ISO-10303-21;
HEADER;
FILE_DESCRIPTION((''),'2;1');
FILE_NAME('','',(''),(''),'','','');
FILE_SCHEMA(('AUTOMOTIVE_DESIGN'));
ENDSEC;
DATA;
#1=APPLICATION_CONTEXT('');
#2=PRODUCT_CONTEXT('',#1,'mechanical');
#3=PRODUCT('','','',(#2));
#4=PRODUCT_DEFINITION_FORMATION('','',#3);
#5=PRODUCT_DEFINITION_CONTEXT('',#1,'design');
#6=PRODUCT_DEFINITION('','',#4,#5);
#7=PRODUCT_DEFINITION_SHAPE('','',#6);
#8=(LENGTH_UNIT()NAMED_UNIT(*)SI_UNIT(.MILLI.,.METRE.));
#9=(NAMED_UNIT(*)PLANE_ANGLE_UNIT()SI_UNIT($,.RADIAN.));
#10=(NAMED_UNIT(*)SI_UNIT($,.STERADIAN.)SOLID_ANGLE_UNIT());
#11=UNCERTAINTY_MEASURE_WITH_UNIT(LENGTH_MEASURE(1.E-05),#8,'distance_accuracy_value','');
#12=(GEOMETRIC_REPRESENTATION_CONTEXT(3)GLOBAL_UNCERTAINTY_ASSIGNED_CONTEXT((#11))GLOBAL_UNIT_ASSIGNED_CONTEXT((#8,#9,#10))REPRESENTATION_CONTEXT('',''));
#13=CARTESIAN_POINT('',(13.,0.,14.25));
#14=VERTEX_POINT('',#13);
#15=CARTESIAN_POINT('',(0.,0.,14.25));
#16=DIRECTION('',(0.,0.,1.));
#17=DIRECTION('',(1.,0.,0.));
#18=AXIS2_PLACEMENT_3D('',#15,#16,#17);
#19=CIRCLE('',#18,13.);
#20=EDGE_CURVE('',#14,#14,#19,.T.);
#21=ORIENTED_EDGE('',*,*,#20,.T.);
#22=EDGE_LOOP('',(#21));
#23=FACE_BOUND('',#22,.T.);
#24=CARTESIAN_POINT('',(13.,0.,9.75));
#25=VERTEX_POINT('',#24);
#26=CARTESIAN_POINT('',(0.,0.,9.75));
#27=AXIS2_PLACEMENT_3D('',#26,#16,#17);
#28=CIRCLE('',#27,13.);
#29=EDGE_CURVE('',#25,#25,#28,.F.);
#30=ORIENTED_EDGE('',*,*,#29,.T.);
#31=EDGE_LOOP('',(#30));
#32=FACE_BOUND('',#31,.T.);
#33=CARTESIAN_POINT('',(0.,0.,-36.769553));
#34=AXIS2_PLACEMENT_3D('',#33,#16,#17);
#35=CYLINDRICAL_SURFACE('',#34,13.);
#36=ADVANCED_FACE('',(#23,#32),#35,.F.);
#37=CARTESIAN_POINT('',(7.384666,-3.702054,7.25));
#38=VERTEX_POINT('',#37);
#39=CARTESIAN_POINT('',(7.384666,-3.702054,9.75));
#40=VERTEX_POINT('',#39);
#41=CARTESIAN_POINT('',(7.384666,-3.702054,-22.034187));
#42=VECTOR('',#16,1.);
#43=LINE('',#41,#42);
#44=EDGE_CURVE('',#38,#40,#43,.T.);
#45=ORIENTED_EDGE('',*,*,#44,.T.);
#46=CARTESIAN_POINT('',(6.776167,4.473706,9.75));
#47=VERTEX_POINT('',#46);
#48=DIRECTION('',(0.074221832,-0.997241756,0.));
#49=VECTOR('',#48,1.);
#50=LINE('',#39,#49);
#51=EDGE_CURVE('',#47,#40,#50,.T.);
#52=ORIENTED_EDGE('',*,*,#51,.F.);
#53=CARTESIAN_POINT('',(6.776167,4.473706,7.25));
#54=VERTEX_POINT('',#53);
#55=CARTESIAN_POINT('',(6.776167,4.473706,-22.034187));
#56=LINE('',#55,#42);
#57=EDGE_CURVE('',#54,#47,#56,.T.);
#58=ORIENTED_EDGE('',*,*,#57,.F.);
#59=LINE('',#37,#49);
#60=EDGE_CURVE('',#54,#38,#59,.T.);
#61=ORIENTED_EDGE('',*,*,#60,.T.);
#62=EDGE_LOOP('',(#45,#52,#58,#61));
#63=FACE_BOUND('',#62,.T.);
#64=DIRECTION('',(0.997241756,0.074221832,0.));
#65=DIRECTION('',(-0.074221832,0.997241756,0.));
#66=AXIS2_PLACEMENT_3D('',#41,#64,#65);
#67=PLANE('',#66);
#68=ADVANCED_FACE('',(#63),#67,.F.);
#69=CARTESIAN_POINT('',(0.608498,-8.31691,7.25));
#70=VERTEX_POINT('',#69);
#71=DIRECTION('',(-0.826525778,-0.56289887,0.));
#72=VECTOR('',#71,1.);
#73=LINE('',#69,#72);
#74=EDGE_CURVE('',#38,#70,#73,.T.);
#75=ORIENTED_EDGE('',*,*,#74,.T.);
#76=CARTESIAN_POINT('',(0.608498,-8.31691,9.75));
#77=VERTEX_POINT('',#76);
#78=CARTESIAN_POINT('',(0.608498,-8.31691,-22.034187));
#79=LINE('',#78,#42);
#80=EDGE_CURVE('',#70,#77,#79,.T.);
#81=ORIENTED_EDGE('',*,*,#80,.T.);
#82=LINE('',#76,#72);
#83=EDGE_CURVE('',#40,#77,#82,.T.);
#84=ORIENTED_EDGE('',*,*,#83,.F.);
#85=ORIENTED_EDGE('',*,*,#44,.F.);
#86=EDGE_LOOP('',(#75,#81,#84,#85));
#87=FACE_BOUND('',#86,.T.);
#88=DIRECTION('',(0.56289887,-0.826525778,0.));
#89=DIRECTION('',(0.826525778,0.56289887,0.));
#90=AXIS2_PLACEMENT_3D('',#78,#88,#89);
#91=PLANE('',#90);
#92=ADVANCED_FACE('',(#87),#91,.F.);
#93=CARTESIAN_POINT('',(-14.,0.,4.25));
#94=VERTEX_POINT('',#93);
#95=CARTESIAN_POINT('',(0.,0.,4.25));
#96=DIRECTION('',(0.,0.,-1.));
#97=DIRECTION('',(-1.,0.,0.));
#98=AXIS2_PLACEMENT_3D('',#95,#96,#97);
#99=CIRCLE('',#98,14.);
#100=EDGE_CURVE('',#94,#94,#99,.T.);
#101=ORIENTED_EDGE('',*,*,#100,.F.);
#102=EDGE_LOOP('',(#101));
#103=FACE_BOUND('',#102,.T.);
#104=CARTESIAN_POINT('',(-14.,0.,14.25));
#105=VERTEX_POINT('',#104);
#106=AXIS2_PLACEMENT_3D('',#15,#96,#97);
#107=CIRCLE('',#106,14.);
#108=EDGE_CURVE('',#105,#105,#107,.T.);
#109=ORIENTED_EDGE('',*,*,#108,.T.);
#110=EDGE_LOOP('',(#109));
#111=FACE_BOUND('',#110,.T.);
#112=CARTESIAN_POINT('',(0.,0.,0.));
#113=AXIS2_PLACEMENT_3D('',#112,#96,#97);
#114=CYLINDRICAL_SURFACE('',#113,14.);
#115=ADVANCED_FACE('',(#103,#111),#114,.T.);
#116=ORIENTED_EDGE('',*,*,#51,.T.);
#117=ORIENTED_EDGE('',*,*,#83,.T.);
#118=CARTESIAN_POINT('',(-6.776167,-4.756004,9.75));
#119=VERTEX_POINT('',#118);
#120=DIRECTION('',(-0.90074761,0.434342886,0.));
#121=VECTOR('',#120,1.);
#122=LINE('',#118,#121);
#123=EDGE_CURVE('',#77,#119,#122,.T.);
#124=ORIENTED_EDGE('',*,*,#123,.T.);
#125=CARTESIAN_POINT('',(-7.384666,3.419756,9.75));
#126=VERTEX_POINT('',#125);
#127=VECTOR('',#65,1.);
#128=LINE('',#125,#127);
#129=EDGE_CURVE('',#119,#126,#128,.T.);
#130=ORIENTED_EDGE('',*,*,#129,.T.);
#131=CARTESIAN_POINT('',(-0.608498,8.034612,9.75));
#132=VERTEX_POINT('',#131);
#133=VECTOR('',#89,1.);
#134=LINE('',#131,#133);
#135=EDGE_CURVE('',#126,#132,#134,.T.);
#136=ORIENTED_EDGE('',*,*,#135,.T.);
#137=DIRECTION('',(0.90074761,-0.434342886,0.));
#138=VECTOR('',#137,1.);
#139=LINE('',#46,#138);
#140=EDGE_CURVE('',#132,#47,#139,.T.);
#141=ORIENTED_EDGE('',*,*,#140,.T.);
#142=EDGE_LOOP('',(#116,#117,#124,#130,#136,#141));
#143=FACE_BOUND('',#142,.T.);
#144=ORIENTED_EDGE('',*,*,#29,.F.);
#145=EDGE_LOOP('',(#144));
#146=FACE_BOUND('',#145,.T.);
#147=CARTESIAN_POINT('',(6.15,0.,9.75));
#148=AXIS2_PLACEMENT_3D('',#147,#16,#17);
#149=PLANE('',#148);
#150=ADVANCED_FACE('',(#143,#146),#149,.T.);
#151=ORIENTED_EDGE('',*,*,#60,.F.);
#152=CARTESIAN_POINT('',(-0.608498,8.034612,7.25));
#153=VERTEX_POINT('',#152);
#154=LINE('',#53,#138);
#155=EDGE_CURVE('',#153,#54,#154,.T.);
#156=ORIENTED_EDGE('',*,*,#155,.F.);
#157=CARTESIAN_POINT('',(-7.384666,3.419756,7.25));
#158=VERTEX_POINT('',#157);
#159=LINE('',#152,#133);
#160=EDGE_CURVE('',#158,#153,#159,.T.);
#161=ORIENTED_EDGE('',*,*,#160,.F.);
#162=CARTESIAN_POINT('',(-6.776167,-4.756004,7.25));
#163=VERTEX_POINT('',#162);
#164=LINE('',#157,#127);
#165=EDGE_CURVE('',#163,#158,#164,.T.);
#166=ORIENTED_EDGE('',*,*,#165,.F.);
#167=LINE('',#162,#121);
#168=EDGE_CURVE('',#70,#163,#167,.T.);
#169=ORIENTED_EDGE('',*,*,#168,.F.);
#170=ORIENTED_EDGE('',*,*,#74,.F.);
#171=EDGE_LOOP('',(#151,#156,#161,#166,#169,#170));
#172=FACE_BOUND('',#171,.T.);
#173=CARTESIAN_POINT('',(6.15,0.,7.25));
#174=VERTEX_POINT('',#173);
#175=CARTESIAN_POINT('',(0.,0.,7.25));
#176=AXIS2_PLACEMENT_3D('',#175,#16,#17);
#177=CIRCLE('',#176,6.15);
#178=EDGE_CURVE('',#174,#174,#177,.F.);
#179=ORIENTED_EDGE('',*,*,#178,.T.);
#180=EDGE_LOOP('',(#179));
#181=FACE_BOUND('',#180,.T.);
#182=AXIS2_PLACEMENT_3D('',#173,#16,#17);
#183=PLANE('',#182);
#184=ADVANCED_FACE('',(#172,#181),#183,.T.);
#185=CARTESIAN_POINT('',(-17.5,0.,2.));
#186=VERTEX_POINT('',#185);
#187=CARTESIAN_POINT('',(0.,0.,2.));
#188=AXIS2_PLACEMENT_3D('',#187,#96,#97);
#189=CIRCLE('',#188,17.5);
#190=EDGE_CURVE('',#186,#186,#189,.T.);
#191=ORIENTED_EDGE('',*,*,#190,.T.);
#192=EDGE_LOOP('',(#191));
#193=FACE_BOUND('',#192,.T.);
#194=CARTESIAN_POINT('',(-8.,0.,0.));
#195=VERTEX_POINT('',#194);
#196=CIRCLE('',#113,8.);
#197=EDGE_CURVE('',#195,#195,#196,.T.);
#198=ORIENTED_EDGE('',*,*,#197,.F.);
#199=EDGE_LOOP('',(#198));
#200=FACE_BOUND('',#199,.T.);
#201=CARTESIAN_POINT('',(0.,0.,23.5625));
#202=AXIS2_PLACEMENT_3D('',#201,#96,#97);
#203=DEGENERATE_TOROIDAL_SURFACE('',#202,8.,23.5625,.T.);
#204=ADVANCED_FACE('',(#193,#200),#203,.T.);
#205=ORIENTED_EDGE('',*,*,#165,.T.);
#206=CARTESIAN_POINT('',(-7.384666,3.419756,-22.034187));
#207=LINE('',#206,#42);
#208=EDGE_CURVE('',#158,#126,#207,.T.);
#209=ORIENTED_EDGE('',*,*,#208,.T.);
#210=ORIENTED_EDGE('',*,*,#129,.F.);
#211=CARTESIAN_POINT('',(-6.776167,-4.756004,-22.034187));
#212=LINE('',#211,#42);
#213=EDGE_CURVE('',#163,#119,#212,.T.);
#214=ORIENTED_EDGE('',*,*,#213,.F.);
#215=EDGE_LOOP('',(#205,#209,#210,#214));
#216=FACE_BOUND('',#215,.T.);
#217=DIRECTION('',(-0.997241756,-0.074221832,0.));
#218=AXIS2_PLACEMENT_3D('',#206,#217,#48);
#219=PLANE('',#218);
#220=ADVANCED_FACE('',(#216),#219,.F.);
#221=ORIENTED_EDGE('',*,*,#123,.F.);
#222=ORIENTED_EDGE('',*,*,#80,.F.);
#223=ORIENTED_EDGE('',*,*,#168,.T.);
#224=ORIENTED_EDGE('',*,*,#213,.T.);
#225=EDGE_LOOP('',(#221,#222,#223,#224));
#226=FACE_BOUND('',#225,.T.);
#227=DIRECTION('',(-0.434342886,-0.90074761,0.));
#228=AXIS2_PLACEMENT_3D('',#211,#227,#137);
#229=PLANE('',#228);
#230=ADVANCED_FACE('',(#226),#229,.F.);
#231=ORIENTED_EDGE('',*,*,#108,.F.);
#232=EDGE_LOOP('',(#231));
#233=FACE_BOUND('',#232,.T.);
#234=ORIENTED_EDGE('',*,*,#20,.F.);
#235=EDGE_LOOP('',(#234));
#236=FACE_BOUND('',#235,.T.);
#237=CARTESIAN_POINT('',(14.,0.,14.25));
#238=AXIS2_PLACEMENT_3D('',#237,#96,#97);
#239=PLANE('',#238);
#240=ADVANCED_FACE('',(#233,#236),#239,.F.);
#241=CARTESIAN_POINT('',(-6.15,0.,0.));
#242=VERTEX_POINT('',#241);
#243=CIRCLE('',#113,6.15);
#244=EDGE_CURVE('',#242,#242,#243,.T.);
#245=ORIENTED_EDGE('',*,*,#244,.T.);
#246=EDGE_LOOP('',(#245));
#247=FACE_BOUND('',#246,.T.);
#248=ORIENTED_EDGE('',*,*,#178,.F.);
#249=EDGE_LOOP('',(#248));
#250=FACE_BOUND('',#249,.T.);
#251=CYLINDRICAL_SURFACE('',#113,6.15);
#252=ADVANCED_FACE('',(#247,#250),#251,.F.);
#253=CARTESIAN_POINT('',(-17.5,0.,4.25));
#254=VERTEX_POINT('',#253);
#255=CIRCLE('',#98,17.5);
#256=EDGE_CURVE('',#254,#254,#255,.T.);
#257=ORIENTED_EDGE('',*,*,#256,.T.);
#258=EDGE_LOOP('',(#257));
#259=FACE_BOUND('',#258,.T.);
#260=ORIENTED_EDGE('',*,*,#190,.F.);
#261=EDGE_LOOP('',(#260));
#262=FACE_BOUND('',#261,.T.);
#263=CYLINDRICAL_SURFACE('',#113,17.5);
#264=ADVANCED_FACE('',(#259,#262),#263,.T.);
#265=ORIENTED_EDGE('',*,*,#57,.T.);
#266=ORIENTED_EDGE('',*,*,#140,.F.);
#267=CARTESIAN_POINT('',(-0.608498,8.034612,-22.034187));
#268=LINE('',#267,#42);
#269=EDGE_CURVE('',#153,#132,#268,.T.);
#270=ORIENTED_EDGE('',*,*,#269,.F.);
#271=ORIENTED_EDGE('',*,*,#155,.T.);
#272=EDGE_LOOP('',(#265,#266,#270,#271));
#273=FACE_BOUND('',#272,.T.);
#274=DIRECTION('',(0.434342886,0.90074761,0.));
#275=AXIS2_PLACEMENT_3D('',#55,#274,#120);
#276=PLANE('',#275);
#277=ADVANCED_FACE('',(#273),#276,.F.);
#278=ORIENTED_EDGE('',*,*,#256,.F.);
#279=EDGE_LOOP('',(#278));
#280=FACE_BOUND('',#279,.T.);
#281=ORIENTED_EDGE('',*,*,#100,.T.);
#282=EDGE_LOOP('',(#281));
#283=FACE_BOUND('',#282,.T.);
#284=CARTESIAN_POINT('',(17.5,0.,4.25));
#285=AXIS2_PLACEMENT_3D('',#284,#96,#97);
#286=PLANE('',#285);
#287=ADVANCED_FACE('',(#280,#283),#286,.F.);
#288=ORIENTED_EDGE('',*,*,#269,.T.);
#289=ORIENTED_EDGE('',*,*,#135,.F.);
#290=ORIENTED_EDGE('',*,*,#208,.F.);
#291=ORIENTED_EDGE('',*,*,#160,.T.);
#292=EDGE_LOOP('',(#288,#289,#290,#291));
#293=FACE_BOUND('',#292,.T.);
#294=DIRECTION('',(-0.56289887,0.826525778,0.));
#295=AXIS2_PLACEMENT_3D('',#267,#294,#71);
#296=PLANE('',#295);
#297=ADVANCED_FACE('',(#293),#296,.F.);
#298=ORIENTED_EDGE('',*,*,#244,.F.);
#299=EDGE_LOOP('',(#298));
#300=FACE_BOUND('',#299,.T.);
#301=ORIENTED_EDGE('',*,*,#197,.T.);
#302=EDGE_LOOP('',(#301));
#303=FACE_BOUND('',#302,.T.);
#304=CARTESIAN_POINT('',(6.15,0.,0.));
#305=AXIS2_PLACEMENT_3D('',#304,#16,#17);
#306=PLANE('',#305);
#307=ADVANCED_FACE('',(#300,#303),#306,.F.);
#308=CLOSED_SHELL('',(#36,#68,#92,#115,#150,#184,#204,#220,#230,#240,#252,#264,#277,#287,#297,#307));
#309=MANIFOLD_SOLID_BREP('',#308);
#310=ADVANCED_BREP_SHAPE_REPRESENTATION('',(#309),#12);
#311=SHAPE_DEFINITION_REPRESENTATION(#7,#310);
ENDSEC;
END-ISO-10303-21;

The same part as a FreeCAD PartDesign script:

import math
import FreeCAD as App
import Part
import Sketcher

V = App.Vector


def add_polygon(sketch, points):
    """Adds a closed chain of lines whose ends are joined by coincident constraints."""
    first, n = sketch.GeometryCount, len(points)
    for a, b in zip(points, points[1:] + points[:1]):
        sketch.addGeometry(Part.LineSegment(App.Vector(*a, 0), App.Vector(*b, 0)), False)
    for i in range(n):
        sketch.addConstraint(Sketcher.Constraint("Coincident", first + i, 2, first + (i + 1) % n, 1))

doc = App.newDocument("Part")
body = doc.addObject("PartDesign::Body", "Body")

# Sketch on XZ plane
sketch1 = body.newObject("Sketcher::SketchObject", "Sketch")
sketch1.AttachmentSupport = (doc.getObject("XZ_Plane"), [""])
sketch1.MapMode = "FlatFace"
sketch1.addGeometry([
    Part.LineSegment(V(6.2, 0, 0), V(6.2, 14.2, 0)),  # 0
    Part.LineSegment(V(6.2, 14.2, 0), V(14, 14.2, 0)),  # 1
    Part.LineSegment(V(14, 14.2, 0), V(14, 4.2, 0)),  # 2
    Part.LineSegment(V(14, 4.2, 0), V(17.5, 4.2, 0)),  # 3
    Part.LineSegment(V(17.5, 4.2, 0), V(17.5, 2, 0)),  # 4
    Part.ArcOfCircle(Part.Circle(V(8, 23.6, 0), V(0, 0, 1), 23.6), math.radians(-90), math.radians(-66)),  # 5
    Part.LineSegment(V(8, 0, 0), V(6.2, 0, 0)),  # 6
], False)
sketch1.addConstraint([
    Sketcher.Constraint("Coincident", 0, 2, 1, 1),
    Sketcher.Constraint("Coincident", 1, 2, 2, 1),
    Sketcher.Constraint("Coincident", 2, 2, 3, 1),
    Sketcher.Constraint("Coincident", 3, 2, 4, 1),
    Sketcher.Constraint("Coincident", 4, 2, 5, 2),
    Sketcher.Constraint("Tangent", 5, 1, 6, 1),
    Sketcher.Constraint("Coincident", 6, 2, 0, 1),
    Sketcher.Constraint("Vertical", 0),
    Sketcher.Constraint("Horizontal", 1),
    Sketcher.Constraint("Vertical", 2),
    Sketcher.Constraint("Horizontal", 3),
    Sketcher.Constraint("Vertical", 4),
    Sketcher.Constraint("Horizontal", 6),
    Sketcher.Constraint("PointOnObject", 5, 1, -1),
    Sketcher.Constraint("DistanceY", 2, 2, 2, 1, 10.0),
    Sketcher.Constraint("DistanceX", 3, 1, 3, 2, 3.5),
    Sketcher.Constraint("DistanceX", -1, 1, 5, 3, 8.0),
    Sketcher.Constraint("DistanceX", -1, 1, 1, 2, 14.0),
    Sketcher.Constraint("DistanceY", -1, 1, 4, 2, 2.0),
    Sketcher.Constraint("DistanceX", 1, 1, 1, 2, 7.85),
    Sketcher.Constraint("DistanceY", 0, 1, 0, 2, 14.25),
])
revolution = body.newObject("PartDesign::Revolution", "Revolution")
revolution.Profile = sketch1
revolution.ReferenceAxis = (sketch1, ["V_Axis"])
revolution.Angle = 360

# Sketch on XY plane
sketch2 = body.newObject("Sketcher::SketchObject", "Sketch001")
sketch2.AttachmentSupport = (doc.getObject("XY_Plane"), [""])
sketch2.MapMode = "FlatFace"
sketch2.AttachmentOffset = App.Placement(V(0, 0, 14.25), App.Rotation())
add_polygon(sketch2, [(1, -8), (7, -4), (7, 4), (-1, 8), (-7, 3), (-7, -5)])  # lines 0-5
sketch2.addConstraint([
    Sketcher.Constraint("Parallel", 0, 3),
    Sketcher.Constraint("Parallel", 1, 4),
    Sketcher.Constraint("Parallel", 2, 5),
    Sketcher.Constraint("Equal", 0, 1),
    Sketcher.Constraint("Equal", 1, 2),
    Sketcher.Constraint("Equal", 2, 3),
    Sketcher.Constraint("DistanceX", 2, 2, -1, 1, 0.608498),
    Sketcher.Constraint("DistanceX", -1, 1, 5, 2, 0.608498),
    Sketcher.Constraint("DistanceX", 1, 2, 0, 2, 0.608498),
    Sketcher.Constraint("DistanceY", -1, 1, 2, 2, 8.034612),
    Sketcher.Constraint("DistanceY", 5, 2, -1, 1, 8.31691),
    Sketcher.Constraint("DistanceY", 0, 2, 1, 2, 8.175761),
])
pocket1 = body.newObject("PartDesign::Pocket", "Pocket")
pocket1.Profile = sketch2
pocket1.Length = 7

# Sketch on XY plane
sketch3 = body.newObject("Sketcher::SketchObject", "Sketch002")
sketch3.AttachmentSupport = (doc.getObject("XY_Plane"), [""])
sketch3.MapMode = "FlatFace"
sketch3.AttachmentOffset = App.Placement(V(0, 0, 14.25), App.Rotation())
sketch3.addGeometry(Part.Circle(V(0, 0, 0), V(0, 0, 1), 13), False)
sketch3.addConstraint([
    Sketcher.Constraint("Coincident", 0, 3, -1, 1),
    Sketcher.Constraint("Diameter", 0, 26.0),
])
pocket2 = body.newObject("PartDesign::Pocket", "Pocket001")
pocket2.Profile = sketch3
pocket2.Length = 4.5

doc.recompute()
